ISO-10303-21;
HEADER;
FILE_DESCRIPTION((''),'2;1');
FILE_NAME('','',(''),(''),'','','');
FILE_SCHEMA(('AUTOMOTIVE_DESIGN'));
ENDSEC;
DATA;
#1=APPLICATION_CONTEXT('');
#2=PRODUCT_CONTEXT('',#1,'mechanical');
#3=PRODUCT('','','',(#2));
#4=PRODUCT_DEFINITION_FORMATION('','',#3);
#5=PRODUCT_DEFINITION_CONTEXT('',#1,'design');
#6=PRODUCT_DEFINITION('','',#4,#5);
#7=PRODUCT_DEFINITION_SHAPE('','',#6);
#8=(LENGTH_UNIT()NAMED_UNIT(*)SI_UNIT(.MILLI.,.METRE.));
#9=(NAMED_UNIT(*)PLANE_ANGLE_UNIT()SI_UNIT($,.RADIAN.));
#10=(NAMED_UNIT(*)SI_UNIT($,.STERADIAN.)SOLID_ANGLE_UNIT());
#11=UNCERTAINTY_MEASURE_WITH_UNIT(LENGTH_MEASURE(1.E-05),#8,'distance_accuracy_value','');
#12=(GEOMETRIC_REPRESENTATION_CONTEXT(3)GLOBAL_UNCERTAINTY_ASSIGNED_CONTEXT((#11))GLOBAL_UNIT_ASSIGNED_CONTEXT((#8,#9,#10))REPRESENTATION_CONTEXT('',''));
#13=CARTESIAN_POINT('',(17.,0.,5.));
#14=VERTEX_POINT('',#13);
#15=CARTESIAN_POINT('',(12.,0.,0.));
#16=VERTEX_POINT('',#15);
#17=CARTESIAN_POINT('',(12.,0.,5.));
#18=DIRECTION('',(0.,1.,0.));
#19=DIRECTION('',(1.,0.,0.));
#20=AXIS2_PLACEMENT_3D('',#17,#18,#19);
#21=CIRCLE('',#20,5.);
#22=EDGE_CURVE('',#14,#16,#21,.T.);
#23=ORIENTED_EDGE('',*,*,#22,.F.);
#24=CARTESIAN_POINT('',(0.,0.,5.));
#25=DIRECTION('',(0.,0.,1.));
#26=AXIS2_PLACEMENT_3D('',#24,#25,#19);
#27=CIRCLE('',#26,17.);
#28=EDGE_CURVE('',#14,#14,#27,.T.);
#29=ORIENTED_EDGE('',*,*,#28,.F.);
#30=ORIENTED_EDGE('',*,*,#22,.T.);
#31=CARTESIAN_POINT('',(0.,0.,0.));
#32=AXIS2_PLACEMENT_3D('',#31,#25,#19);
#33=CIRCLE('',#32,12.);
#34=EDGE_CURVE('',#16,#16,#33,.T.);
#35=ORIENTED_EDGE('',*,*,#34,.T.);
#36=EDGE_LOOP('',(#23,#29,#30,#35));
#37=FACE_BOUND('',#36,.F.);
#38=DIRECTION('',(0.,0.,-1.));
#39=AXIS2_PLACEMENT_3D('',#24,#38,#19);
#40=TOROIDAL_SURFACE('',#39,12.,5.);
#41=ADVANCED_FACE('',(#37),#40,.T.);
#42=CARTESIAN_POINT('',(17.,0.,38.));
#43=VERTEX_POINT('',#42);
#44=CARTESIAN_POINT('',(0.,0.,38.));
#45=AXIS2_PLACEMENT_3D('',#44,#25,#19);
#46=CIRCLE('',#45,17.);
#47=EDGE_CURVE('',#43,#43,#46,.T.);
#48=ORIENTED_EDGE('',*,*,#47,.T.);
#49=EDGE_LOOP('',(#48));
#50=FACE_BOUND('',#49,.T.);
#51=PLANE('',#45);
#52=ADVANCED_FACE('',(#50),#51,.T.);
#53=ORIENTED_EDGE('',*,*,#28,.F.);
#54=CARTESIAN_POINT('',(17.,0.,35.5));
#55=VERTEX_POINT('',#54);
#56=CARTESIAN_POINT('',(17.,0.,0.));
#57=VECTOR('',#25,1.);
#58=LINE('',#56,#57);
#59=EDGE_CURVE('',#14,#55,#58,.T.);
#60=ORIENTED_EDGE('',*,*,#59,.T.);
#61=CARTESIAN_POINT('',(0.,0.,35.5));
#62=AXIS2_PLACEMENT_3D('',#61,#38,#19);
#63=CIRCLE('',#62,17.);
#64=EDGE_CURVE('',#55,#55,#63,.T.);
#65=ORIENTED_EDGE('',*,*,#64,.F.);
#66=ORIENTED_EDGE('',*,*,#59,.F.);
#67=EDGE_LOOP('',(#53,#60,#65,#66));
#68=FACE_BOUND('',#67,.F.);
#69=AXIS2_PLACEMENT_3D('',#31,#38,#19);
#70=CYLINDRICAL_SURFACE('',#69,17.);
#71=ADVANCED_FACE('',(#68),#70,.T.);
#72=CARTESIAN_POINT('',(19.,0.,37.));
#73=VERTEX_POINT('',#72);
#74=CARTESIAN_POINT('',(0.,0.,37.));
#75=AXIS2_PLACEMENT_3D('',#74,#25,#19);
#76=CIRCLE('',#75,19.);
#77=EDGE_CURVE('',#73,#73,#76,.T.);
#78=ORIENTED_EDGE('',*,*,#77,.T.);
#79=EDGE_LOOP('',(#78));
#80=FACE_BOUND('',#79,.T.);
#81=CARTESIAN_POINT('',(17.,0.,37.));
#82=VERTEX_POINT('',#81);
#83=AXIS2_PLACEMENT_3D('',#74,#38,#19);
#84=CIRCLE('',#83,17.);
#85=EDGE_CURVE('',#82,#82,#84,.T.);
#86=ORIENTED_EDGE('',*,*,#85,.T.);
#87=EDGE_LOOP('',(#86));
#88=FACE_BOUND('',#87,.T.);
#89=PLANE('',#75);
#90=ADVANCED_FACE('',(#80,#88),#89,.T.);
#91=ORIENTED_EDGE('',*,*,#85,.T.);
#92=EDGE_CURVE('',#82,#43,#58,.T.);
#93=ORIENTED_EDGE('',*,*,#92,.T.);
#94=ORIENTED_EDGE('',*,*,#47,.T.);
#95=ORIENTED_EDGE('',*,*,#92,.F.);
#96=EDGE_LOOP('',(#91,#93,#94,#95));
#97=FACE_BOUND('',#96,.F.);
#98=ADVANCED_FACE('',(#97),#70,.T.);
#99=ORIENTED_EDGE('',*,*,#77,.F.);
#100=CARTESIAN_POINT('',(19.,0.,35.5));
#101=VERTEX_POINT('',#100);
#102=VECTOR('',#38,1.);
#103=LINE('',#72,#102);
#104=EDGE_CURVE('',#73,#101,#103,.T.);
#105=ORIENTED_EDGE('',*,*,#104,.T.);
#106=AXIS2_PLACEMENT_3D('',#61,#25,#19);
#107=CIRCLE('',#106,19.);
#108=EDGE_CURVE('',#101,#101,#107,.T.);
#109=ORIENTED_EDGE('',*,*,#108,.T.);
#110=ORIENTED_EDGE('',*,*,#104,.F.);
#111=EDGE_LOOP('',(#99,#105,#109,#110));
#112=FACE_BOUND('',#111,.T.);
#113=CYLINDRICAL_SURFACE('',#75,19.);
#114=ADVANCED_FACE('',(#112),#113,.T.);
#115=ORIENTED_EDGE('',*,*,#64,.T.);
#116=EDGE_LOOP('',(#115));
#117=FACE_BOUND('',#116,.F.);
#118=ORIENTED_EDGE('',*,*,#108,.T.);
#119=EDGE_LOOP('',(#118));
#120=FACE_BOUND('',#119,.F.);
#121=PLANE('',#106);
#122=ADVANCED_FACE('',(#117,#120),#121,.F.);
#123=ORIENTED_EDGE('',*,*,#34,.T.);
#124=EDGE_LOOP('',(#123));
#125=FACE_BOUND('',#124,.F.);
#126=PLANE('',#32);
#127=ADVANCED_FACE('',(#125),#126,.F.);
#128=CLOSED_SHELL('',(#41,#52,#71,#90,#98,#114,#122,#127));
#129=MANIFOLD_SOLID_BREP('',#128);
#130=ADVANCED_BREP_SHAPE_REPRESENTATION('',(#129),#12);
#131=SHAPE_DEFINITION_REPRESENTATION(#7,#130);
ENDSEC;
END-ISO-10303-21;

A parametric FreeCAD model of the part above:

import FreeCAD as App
import Part
import Sketcher
Q = App.Units.Quantity


def edges_at(feature, points):
    """Names of the edges that pass closest to the given points."""
    edges = feature.Shape.Edges
    near = lambda p: min(range(len(edges)), key=lambda i: edges[i].distToShape(Part.Vertex(*p))[0])
    return sorted({f"Edge{near(p) + 1}" for p in points})

doc = App.newDocument("Part")
body = doc.addObject("PartDesign::Body", "Body")

sketch1 = body.newObject("Sketcher::SketchObject", "Sketch")
sketch1.AttachmentSupport = (doc.getObject("XY_Plane"), [""])
sketch1.MapMode = "FlatFace"
sketch1.addGeometry(Part.Circle(App.Vector(0, 0, 0), App.Vector(0, 0, 1), 17), False)
sketch1.addConstraint([
    Sketcher.Constraint("Coincident", 0, 3, -1, 1),
    Sketcher.Constraint("Diameter", 0, Q("34 mm")),
])
pad1 = body.newObject("PartDesign::Pad", "Pad")
pad1.Profile = sketch1
pad1.Length = 38
doc.recompute()

fillet = body.newObject("PartDesign::Fillet", "Fillet")
fillet.Base = (pad1, edges_at(pad1, [(-17, 0, 0)]))
fillet.Radius = 5

sketch2 = body.newObject("Sketcher::SketchObject", "Sketch001")
sketch2.AttachmentSupport = (doc.getObject("XY_Plane"), [""])
sketch2.MapMode = "FlatFace"
sketch2.AttachmentOffset = App.Placement(App.Vector(0, 0, 37), App.Rotation())
sketch2.addGeometry(Part.Circle(App.Vector(0, 0, 0), App.Vector(0, 0, 1), 19), False)
sketch2.addConstraint([
    Sketcher.Constraint("Coincident", 0, 3, -1, 1),
    Sketcher.Constraint("Diameter", 0, Q("38 mm")),
])
pad2 = body.newObject("PartDesign::Pad", "Pad001")
pad2.Profile = sketch2
pad2.Length = 1.5
pad2.Reversed = True

doc.recompute()
